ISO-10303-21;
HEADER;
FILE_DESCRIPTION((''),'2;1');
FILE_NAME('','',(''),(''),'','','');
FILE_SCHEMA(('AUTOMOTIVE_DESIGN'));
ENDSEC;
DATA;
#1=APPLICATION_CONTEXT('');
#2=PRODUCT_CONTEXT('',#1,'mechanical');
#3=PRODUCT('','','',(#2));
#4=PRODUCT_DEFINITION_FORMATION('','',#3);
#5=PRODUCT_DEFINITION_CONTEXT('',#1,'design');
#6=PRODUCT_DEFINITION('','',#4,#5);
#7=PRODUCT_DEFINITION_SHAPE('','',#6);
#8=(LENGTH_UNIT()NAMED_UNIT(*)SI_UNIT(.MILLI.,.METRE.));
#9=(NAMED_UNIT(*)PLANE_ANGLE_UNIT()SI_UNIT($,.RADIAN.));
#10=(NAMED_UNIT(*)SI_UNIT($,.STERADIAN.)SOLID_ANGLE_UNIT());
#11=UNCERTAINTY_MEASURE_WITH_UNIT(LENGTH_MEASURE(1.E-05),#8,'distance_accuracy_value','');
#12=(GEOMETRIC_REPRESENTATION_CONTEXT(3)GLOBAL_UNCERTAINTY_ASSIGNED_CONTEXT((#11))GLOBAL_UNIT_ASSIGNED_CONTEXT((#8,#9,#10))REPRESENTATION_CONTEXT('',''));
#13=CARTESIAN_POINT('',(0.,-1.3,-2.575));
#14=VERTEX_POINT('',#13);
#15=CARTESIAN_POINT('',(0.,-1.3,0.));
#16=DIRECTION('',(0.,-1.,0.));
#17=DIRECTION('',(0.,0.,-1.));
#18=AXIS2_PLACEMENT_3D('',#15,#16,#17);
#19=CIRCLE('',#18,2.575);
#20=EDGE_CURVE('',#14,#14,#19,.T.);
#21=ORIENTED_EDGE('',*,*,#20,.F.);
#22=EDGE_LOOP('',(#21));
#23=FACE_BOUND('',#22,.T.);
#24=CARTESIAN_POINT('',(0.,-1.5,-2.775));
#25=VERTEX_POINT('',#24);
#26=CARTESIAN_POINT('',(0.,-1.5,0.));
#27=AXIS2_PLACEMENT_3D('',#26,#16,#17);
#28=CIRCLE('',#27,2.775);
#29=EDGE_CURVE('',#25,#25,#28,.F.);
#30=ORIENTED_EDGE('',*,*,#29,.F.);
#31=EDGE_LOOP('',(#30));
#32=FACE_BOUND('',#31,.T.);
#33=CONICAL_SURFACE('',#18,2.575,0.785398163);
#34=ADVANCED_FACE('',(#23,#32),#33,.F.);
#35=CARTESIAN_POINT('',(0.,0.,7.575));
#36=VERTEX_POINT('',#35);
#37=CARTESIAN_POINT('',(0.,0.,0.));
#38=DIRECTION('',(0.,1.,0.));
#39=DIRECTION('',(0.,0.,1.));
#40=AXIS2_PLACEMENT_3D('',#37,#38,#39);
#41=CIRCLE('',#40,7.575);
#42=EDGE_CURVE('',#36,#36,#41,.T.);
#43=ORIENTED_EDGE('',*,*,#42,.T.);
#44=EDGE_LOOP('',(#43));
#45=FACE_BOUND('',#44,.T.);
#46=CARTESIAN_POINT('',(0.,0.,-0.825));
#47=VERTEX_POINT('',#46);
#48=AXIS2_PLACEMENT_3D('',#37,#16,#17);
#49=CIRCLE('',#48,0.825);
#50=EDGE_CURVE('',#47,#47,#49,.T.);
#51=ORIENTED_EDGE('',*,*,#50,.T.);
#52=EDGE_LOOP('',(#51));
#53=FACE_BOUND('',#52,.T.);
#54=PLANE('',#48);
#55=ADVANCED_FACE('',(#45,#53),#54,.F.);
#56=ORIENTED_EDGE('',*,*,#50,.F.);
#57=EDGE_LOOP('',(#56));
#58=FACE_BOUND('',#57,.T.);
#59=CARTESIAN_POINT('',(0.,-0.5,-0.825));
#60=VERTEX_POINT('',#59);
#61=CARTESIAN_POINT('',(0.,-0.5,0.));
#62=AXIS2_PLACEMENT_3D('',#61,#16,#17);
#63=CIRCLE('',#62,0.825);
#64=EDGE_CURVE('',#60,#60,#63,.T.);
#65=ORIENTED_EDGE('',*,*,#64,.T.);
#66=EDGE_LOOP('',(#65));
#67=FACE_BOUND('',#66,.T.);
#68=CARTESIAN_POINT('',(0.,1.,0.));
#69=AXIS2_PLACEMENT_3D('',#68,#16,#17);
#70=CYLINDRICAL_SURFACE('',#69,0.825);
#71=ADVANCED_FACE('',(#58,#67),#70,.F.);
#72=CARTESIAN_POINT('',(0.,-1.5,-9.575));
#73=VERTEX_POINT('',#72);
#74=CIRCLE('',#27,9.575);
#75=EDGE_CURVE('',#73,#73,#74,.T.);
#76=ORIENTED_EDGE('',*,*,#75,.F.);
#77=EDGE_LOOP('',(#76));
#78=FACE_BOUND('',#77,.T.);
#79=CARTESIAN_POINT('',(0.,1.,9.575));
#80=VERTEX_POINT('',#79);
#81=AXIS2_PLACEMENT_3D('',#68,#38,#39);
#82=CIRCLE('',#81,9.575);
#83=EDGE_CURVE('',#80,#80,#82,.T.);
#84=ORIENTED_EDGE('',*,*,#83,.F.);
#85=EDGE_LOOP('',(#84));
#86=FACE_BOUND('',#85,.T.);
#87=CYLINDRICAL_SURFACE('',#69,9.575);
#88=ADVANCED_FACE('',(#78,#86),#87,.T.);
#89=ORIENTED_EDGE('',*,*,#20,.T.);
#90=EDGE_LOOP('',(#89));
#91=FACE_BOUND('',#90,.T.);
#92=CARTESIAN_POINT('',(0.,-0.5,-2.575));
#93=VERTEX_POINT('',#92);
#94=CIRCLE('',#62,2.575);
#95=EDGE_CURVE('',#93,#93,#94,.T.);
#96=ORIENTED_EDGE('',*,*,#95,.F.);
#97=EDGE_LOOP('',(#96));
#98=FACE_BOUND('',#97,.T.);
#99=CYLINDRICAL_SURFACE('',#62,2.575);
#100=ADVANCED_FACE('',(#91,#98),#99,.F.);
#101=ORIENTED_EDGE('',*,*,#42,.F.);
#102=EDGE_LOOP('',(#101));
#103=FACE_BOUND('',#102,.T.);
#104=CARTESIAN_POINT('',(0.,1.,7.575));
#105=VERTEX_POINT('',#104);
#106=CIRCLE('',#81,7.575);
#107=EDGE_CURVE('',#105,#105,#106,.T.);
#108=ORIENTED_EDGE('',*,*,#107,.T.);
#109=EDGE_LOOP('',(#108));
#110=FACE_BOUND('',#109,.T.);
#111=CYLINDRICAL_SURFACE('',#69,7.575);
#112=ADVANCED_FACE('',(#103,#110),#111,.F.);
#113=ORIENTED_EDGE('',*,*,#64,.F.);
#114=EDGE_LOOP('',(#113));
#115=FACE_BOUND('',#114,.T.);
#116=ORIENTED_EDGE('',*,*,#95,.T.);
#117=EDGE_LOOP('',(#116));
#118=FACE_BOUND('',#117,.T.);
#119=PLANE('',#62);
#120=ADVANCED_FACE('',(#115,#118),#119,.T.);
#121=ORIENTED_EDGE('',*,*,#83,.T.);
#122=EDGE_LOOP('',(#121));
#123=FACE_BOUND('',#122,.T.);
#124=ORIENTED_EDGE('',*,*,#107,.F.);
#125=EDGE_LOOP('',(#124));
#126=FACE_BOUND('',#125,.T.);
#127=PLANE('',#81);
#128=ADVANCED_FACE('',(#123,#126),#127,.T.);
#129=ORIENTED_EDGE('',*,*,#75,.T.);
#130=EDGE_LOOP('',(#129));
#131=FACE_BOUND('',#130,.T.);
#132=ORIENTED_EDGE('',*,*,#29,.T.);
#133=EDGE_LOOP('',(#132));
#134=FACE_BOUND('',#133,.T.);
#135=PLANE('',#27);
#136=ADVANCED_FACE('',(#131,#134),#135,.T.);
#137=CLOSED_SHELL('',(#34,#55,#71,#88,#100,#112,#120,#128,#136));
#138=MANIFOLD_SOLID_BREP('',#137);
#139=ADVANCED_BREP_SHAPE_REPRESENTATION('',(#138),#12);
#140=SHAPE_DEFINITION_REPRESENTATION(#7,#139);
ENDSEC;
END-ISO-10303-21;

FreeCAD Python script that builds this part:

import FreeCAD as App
import Part
import Sketcher
from FreeCAD import Vector
Q = App.Units.Quantity


def edges_at(feature, points):
    """Names of the edges that pass closest to the given points."""
    edges = feature.Shape.Edges
    near = lambda p: min(range(len(edges)), key=lambda i: edges[i].distToShape(Part.Vertex(*p))[0])
    return sorted({f"Edge{near(p) + 1}" for p in points})

doc = App.newDocument("Part")
body = doc.addObject("PartDesign::Body", "Body")

# Sketch on XZ plane
sketch1 = body.newObject("Sketcher::SketchObject", "Sketch")
sketch1.AttachmentSupport = (doc.getObject("XZ_Plane"), [""])
sketch1.MapMode = "FlatFace"
sketch1.addGeometry([
    Part.Circle(Vector(0, 0, 0), Vector(0, 0, 1), 10),
    Part.Circle(Vector(0, 0, 0), Vector(0, 0, 1), 8),
], False)
sketch1.addConstraint([
    Sketcher.Constraint("Coincident", 0, 3, -1, 1),
    Sketcher.Constraint("Coincident", 1, 3, -1, 1),
    Sketcher.Constraint("Diameter", 0, Q("19.15 mm")),
    Sketcher.Constraint("Diameter", 1, Q("15.15 mm")),
])
pad1 = body.newObject("PartDesign::Pad", "Pad")
pad1.Profile = sketch1
pad1.Length = 1
pad1.Reversed = True

# Sketch on XZ plane
sketch2 = body.newObject("Sketcher::SketchObject", "Sketch001")
sketch2.AttachmentSupport = (doc.getObject("XZ_Plane"), [""])
sketch2.MapMode = "FlatFace"
sketch2.AttachmentOffset = App.Placement(Vector(0, 0, 1.5), App.Rotation())
sketch2.addGeometry(Part.Circle(Vector(0, 0, 0), Vector(0, 0, 1), 10), False)
sketch2.addConstraint([
    Sketcher.Constraint("Coincident", 0, 3, -1, 1),
    Sketcher.Constraint("Diameter", 0, Q("19.15 mm")),
])
pad2 = body.newObject("PartDesign::Pad", "Pad001")
pad2.Profile = sketch2
pad2.Length = 1.5
pad2.Reversed = True

# Sketch on XZ plane
sketch3 = body.newObject("Sketcher::SketchObject", "Sketch002")
sketch3.AttachmentSupport = (doc.getObject("XZ_Plane"), [""])
sketch3.MapMode = "FlatFace"
sketch3.AttachmentOffset = App.Placement(Vector(0, 0, 1.5), App.Rotation())
sketch3.addGeometry(Part.Circle(Vector(0, 0, 0), Vector(0, 0, 1), 2.6), False)
sketch3.addConstraint([
    Sketcher.Constraint("Coincident", 0, 3, -1, 1),
    Sketcher.Constraint("Diameter", 0, Q("5.15 mm")),
])
pocket1 = body.newObject("PartDesign::Pocket", "Pocket")
pocket1.Profile = sketch3
pocket1.Length = 1
doc.recompute()

chamfer = body.newObject("PartDesign::Chamfer", "Chamfer")
chamfer.Base = (pocket1, edges_at(pocket1, [(0, -1.5, 2.575)]))
chamfer.Size = 0.2

# Sketch on XZ plane
sketch4 = body.newObject("Sketcher::SketchObject", "Sketch003")
sketch4.AttachmentSupport = (doc.getObject("XZ_Plane"), [""])
sketch4.MapMode = "FlatFace"
sketch4.AttachmentOffset = App.Placement(Vector(0, 0, 0.5), App.Rotation())
sketch4.addGeometry(Part.Circle(Vector(0, 0, 0), Vector(0, 0, 1), 0.8), False)
sketch4.addConstraint([
    Sketcher.Constraint("Coincident", 0, 3, -1, 1),
    Sketcher.Constraint("Diameter", 0, Q("1.65 mm")),
])
pocket2 = body.newObject("PartDesign::Pocket", "Pocket001")
pocket2.Profile = sketch4
pocket2.Type = "ThroughAll"

doc.recompute()
